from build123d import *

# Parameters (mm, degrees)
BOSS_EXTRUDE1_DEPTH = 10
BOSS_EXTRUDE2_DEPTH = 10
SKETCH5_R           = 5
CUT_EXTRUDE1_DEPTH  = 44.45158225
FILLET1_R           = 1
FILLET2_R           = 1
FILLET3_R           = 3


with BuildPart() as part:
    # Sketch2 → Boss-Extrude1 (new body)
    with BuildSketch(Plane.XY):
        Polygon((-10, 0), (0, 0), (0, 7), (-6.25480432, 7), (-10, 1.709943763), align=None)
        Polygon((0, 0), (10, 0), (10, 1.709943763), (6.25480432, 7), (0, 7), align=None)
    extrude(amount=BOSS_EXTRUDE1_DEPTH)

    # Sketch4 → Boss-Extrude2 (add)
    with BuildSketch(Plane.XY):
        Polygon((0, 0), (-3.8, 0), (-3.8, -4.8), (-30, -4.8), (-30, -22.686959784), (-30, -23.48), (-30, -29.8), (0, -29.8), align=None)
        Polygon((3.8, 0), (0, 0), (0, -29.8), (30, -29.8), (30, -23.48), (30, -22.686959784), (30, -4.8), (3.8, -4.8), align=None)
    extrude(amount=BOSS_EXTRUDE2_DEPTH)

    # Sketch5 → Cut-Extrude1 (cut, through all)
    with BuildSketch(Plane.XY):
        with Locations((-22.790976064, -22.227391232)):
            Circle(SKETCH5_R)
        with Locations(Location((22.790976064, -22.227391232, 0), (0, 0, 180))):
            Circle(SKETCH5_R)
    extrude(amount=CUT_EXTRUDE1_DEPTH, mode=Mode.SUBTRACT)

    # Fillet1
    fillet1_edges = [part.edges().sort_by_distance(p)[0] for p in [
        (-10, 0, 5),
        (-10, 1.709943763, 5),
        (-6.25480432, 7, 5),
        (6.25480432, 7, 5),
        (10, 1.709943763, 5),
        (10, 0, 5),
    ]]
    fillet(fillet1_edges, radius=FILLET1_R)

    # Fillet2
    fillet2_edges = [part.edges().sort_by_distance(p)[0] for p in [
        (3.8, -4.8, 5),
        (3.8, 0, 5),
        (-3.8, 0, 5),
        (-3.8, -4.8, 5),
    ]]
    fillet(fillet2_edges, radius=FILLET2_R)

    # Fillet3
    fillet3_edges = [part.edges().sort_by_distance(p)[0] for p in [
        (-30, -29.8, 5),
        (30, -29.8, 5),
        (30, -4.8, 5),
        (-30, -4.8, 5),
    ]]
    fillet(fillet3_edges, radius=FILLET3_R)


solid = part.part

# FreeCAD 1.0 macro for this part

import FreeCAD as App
import Part
import Sketcher
from FreeCAD import Vector
Q = App.Units.Quantity


def edges_at(feature, points):
    """Names of the edges that pass closest to the given points."""
    edges = feature.Shape.Edges
    near = lambda p: min(range(len(edges)), key=lambda i: edges[i].distToShape(Part.Vertex(*p))[0])
    return sorted({f"Edge{near(p) + 1}" for p in points})


def add_polygon(sketch, points):
    """Adds a closed chain of lines whose ends are joined by coincident constraints."""
    first, n = sketch.GeometryCount, len(points)
    for a, b in zip(points, points[1:] + points[:1]):
        sketch.addGeometry(Part.LineSegment(App.Vector(*a, 0), App.Vector(*b, 0)), False)
    for i in range(n):
        sketch.addConstraint(Sketcher.Constraint("Coincident", first + i, 2, first + (i + 1) % n, 1))

doc = App.newDocument("Part")
params = doc.addObject("Spreadsheet::Sheet", "Params")
for row, (alias, value) in enumerate([
    ("sketch1_width", "20 mm"),
    ("pad1_length", "10 mm"),
    ("sketch2_width", "60 mm"),
    ("sketch2_height", "25 mm"),
    ("sketch2_width2", "26.2 mm"),
    ("sketch2_height2", "4.8 mm"),
    ("pad2_length", "10 mm"),
    ("sketch3_diameter", "10 mm"),
    ("fillet_radius", "1 mm"),
    ("fillet2_radius", "1 mm"),
    ("fillet3_radius", "3 mm"),
], start=1):
    params.set(f"A{row}", alias)
    params.set(f"B{row}", "=" + value)
    params.setAlias(f"B{row}", alias)

body = doc.addObject("PartDesign::Body", "Body")

# Sketch on XY plane
sketch1 = body.newObject("Sketcher::SketchObject", "Sketch")
sketch1.AttachmentSupport = (doc.getObject("XY_Plane"), [""])
sketch1.MapMode = "FlatFace"
add_polygon(sketch1, [(-10, 0), (10, 0), (10, 1.7), (6.3, 7), (-6.3, 7), (-10, 1.7)])  # lines 0-5
sketch1.addConstraint([
    Sketcher.Constraint("Horizontal", 0),
    Sketcher.Constraint("Vertical", 1),
    Sketcher.Constraint("Horizontal", 3),
    Sketcher.Constraint("Vertical", 5),
    Sketcher.Constraint("Symmetric", 0, 2, 5, 2, -1, 1),
    Sketcher.Constraint("Horizontal", 1, 2, 4, 2),
    Sketcher.Constraint("Equal", 2, 4),
    Sketcher.Constraint("DistanceX", 0, 1, 0, 2, Q("20 mm")),
    Sketcher.Constraint("DistanceY", -1, 1, 2, 2, Q("7 mm")),
    Sketcher.Constraint("DistanceX", 3, 2, 3, 1, Q("12.509609 mm")),
    Sketcher.Constraint("DistanceY", 1, 1, 1, 2, Q("1.709944 mm")),
])
sketch1.setExpression("Constraints[13]", "Params.sketch1_width")
pad1 = body.newObject("PartDesign::Pad", "Pad")
pad1.Profile = sketch1
pad1.setExpression("Length", "Params.pad1_length")

# Sketch on XY plane
sketch2 = body.newObject("Sketcher::SketchObject", "Sketch001")
sketch2.AttachmentSupport = (doc.getObject("XY_Plane"), [""])
sketch2.MapMode = "FlatFace"
add_polygon(sketch2, [(-3.8, 0), (-3.8, -4.8), (-30, -4.8), (-30, -29.8), (30, -29.8), (30, -4.8), (3.8, -4.8), (3.8, 0)])  # lines 0-7
sketch2.addConstraint([
    Sketcher.Constraint("Vertical", 0),
    Sketcher.Constraint("Horizontal", 1),
    Sketcher.Constraint("Vertical", 2),
    Sketcher.Constraint("Horizontal", 3),
    Sketcher.Constraint("Vertical", 4),
    Sketcher.Constraint("Horizontal", 5),
    Sketcher.Constraint("Vertical", 6),
    Sketcher.Constraint("Horizontal", 7),
    Sketcher.Constraint("Symmetric", 6, 2, 7, 2, -1, 1),
    Sketcher.Constraint("Symmetric", 1, 2, 4, 2, -2),
    Sketcher.Constraint("DistanceX", 3, 1, 3, 2, Q("60 mm")),
    Sketcher.Constraint("DistanceY", 2, 2, 2, 1, Q("25 mm")),
    Sketcher.Constraint("DistanceX", 1, 2, 1, 1, Q("26.2 mm")),
    Sketcher.Constraint("DistanceY", 0, 2, 0, 1, Q("4.8 mm")),
])
sketch2.setExpression("Constraints[18]", "Params.sketch2_width")
sketch2.setExpression("Constraints[19]", "Params.sketch2_height")
sketch2.setExpression("Constraints[20]", "Params.sketch2_width2")
sketch2.setExpression("Constraints[21]", "Params.sketch2_height2")
pad2 = body.newObject("PartDesign::Pad", "Pad001")
pad2.Profile = sketch2
pad2.setExpression("Length", "Params.pad2_length")

# Sketch on XY plane
sketch3 = body.newObject("Sketcher::SketchObject", "Sketch002")
sketch3.AttachmentSupport = (doc.getObject("XY_Plane"), [""])
sketch3.MapMode = "FlatFace"
sketch3.addGeometry([
    Part.Circle(Vector(-23, -22, 0), Vector(0, 0, 1), 5),
    Part.Circle(Vector(23, -22, 0), Vector(0, 0, 1), 5),
], False)
sketch3.addConstraint([
    Sketcher.Constraint("Equal", 0, 1),
    Sketcher.Constraint("Symmetric", 0, 3, 1, 3, -2),
    Sketcher.Constraint("Diameter", 0, Q("10 mm")),
    Sketcher.Constraint("DistanceY", 0, 3, -1, 1, Q("22.227391 mm")),
    Sketcher.Constraint("DistanceX", 0, 3, -1, 1, Q("22.790976 mm")),
])
sketch3.setExpression("Constraints[2]", "Params.sketch3_diameter")
pocket1 = body.newObject("PartDesign::Pocket", "Pocket")
pocket1.Profile = sketch3
pocket1.Type = "ThroughAll"
pocket1.Reversed = True
doc.recompute()

fillet = body.newObject("PartDesign::Fillet", "Fillet")
fillet.Base = (pocket1, edges_at(pocket1, [
    (-10, 0, 5),
    (-10, 1.71, 5),
    (-6.255, 7, 5),
    (6.255, 7, 5),
    (10, 1.71, 5),
    (10, 0, 5),
]))
fillet.setExpression("Radius", "Params.fillet_radius")
doc.recompute()

fillet2 = body.newObject("PartDesign::Fillet", "Fillet001")
fillet2.Base = (fillet, edges_at(fillet, [
    (3.8, -4.8, 5),
    (3.8, 0, 5),
    (-3.8, 0, 5),
    (-3.8, -4.8, 5),
]))
fillet2.setExpression("Radius", "Params.fillet2_radius")
doc.recompute()

fillet3 = body.newObject("PartDesign::Fillet", "Fillet002")
fillet3.Base = (fillet2, edges_at(fillet2, [
    (-30, -29.8, 5),
    (30, -29.8, 5),
    (30, -4.8, 5),
    (-30, -4.8, 5),
]))
fillet3.setExpression("Radius", "Params.fillet3_radius")

doc.recompute()
